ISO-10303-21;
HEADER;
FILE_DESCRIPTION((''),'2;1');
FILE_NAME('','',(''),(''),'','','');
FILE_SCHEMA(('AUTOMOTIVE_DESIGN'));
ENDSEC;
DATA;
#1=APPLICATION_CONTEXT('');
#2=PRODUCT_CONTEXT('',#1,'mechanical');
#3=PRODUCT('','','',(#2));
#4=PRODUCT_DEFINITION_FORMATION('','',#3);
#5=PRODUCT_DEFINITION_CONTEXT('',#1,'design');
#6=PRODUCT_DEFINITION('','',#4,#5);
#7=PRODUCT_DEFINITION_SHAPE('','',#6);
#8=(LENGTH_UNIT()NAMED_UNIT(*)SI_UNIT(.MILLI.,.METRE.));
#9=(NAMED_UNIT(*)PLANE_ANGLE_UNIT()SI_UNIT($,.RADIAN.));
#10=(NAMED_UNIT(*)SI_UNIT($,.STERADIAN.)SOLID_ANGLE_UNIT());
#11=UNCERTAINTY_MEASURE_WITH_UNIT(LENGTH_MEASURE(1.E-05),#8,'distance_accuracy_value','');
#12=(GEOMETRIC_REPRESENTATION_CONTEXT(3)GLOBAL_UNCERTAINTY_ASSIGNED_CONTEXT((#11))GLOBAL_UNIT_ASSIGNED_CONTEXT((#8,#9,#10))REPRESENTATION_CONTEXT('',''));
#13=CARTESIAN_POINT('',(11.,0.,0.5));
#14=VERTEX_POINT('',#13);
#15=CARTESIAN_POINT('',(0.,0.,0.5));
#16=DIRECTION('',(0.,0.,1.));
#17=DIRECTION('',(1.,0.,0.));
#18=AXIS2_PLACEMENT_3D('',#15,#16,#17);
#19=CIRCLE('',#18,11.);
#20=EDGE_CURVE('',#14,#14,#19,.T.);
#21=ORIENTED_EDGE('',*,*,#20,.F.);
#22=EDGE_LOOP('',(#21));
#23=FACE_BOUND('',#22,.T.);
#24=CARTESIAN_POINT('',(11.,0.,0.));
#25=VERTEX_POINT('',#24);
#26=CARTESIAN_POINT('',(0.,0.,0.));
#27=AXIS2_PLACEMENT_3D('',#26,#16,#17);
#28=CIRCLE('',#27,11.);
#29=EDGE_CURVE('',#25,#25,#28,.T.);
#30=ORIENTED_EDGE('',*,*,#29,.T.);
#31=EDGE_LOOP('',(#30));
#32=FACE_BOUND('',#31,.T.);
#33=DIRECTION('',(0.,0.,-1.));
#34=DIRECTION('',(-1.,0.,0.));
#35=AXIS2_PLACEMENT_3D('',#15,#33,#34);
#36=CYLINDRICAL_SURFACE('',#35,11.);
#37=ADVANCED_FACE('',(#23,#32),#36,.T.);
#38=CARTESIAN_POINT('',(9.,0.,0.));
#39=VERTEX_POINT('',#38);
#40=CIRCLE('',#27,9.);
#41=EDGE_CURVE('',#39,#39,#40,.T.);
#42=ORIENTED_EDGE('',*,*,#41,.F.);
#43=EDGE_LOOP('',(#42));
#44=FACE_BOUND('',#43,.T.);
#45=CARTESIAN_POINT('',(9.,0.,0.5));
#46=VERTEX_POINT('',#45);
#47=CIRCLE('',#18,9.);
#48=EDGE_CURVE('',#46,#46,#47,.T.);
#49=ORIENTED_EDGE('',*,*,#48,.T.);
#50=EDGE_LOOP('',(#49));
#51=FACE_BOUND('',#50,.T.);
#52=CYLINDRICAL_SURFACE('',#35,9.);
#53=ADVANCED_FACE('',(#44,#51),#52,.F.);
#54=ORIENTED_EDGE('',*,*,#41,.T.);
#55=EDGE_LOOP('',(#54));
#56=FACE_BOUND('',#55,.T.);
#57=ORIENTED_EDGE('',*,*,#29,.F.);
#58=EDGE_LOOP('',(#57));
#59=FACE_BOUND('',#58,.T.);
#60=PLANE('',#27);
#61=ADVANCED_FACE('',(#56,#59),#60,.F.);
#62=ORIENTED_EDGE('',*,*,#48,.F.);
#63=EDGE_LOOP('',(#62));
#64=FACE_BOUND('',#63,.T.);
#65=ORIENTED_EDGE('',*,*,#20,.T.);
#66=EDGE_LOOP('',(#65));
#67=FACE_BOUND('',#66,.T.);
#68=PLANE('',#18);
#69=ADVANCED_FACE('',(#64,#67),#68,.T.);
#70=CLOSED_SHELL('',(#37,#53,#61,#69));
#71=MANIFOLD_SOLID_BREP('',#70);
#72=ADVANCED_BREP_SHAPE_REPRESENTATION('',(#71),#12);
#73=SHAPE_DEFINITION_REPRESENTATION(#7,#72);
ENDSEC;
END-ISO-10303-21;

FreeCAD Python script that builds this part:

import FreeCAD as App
import Part
import Sketcher
from FreeCAD import Vector

doc = App.newDocument("Part")
body = doc.addObject("PartDesign::Body", "Body")

# Sketch on XY plane
sketch1 = body.newObject("Sketcher::SketchObject", "Sketch")
sketch1.AttachmentSupport = (doc.getObject("XY_Plane"), [""])
sketch1.MapMode = "FlatFace"
sketch1.addGeometry(Part.Circle(Vector(0, 0, 0), Vector(0, 0, 1), 11), False)
sketch1.addGeometry(Part.Circle(Vector(0, 0, 0), Vector(0, 0, 1), 9), False)
sketch1.addConstraint(Sketcher.Constraint("Coincident", 0, 3, -1, 1))
sketch1.addConstraint(Sketcher.Constraint("Coincident", 1, 3, -1, 1))
sketch1.addConstraint(Sketcher.Constraint("Diameter", 0, 22.0))
sketch1.addConstraint(Sketcher.Constraint("Diameter", 1, 18.0))
pad1 = body.newObject("PartDesign::Pad", "Pad")
pad1.Profile = sketch1
pad1.Length = 0.5

doc.recompute()
